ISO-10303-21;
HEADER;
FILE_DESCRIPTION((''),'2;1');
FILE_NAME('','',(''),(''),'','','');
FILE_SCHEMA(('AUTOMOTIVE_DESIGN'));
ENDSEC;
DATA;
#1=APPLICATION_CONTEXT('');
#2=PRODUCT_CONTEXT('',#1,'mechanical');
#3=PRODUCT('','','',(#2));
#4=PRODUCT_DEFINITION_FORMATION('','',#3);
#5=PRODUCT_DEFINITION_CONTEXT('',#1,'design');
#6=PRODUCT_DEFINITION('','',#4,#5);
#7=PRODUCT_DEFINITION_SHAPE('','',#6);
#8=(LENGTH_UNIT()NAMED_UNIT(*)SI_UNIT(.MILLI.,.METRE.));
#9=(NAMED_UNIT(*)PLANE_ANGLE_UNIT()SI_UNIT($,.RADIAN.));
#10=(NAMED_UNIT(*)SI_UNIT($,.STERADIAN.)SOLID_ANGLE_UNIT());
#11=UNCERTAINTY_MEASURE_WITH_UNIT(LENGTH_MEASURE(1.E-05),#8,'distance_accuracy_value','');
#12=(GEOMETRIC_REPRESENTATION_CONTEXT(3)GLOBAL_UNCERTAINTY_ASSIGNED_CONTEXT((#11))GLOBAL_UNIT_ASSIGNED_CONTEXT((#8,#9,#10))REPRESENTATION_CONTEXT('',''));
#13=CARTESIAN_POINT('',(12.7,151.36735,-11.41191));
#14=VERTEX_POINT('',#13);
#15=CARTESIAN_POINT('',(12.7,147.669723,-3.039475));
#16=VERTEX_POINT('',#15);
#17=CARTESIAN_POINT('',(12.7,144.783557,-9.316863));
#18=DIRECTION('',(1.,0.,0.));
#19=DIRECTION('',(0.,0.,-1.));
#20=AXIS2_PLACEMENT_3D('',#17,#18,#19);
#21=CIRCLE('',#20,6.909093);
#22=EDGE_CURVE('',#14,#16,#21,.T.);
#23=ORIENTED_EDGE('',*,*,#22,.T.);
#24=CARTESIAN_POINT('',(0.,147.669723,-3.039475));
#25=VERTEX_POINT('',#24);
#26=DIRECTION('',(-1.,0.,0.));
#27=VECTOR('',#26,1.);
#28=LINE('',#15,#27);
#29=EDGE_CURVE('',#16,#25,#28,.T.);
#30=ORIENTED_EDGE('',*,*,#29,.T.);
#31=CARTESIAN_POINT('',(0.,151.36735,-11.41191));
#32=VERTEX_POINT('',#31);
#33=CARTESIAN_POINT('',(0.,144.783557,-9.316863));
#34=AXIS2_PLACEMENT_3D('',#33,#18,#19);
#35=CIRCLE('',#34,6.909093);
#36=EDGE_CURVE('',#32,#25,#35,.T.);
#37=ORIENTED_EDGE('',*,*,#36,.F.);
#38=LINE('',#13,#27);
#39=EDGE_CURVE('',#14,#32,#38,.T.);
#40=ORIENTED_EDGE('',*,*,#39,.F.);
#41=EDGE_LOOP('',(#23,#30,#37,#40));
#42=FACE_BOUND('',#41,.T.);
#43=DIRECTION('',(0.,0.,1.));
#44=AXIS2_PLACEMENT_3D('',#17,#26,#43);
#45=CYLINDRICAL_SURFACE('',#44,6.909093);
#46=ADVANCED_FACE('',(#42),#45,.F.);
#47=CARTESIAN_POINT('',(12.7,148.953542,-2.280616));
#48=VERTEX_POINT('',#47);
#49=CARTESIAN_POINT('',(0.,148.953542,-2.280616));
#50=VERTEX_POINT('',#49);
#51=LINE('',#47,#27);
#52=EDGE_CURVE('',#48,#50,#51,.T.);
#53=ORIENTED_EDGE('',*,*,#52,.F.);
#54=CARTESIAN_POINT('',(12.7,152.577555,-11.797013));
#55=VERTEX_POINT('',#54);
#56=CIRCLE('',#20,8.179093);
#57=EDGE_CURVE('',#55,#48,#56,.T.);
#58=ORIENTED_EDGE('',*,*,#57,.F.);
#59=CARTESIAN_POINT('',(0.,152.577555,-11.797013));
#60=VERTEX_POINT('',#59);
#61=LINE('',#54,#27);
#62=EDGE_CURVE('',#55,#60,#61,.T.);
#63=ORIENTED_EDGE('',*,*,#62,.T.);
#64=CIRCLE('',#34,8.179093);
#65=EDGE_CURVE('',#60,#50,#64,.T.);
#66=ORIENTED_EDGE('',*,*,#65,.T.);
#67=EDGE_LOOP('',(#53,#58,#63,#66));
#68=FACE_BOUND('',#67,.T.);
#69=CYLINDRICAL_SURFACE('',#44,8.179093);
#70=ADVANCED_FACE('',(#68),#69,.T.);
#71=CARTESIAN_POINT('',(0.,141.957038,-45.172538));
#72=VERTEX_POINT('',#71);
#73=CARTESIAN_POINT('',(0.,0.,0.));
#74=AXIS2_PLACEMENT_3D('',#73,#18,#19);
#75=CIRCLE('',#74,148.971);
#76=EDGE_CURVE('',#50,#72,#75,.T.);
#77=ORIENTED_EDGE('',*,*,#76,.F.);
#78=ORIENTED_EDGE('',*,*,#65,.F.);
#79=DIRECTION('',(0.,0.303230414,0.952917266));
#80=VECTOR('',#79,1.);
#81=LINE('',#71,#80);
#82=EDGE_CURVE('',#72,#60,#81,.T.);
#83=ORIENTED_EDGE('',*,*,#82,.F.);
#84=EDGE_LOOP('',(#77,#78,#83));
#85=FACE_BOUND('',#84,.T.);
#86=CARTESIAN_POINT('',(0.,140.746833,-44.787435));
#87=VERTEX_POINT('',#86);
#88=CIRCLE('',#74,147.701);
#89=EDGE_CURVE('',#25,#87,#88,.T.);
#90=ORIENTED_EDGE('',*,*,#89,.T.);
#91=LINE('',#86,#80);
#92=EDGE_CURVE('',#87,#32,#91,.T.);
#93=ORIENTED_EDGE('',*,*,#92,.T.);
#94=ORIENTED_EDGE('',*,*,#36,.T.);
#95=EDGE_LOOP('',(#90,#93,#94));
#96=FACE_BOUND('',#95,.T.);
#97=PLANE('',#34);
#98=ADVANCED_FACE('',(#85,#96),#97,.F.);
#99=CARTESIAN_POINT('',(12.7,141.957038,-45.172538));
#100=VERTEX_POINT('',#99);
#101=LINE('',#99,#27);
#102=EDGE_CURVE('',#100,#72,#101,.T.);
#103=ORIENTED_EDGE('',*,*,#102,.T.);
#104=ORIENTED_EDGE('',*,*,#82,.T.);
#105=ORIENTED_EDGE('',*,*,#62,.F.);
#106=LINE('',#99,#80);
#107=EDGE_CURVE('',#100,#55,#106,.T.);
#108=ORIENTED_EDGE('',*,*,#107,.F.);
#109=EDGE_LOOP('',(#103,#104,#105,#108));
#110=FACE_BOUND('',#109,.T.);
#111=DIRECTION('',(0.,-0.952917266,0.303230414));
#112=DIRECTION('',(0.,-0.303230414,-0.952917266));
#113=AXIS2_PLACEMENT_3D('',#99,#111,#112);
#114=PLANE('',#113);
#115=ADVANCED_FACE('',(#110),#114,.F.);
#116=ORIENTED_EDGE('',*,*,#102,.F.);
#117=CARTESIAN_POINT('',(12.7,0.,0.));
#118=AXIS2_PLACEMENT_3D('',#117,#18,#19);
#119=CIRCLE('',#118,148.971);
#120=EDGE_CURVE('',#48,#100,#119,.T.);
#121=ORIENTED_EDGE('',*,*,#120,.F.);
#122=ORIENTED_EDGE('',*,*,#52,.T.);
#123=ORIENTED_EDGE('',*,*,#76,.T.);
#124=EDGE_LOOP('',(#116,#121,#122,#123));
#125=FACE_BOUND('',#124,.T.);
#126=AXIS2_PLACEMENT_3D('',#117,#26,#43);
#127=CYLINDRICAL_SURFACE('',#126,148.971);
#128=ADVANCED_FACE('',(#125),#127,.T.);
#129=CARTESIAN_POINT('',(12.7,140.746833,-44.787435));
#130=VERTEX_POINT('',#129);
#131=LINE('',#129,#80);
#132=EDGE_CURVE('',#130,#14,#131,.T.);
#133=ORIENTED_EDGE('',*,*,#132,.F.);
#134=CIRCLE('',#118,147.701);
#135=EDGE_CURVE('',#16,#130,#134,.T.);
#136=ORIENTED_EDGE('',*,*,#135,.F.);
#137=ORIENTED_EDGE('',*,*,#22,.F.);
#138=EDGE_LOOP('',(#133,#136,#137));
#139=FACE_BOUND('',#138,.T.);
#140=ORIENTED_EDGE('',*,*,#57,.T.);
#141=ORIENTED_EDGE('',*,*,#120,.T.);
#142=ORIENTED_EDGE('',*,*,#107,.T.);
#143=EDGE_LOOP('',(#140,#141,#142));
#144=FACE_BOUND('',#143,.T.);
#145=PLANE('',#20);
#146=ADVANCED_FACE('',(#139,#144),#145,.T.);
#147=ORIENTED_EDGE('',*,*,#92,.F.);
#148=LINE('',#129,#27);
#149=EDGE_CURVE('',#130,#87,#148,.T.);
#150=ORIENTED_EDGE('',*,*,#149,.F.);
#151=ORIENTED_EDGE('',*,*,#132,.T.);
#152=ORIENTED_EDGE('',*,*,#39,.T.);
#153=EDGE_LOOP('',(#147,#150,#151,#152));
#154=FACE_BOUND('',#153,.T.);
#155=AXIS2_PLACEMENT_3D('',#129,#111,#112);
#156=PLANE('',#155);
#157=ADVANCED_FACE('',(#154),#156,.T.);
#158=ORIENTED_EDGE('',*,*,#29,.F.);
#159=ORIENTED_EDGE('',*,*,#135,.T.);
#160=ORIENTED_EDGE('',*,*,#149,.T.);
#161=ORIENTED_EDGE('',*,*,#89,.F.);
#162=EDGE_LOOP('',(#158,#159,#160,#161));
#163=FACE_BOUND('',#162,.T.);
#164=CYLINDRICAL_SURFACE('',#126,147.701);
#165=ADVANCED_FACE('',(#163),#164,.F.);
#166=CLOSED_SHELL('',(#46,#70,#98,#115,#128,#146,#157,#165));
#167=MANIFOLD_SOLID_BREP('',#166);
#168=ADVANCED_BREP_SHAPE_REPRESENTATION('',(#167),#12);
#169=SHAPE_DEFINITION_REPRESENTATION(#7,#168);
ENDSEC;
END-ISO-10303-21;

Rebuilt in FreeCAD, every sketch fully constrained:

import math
import FreeCAD as App
import Part
import Sketcher
Q = App.Units.Quantity

doc = App.newDocument("Part")
body = doc.addObject("PartDesign::Body", "Body")

# Sketch on YZ plane
sketch1 = body.newObject("Sketcher::SketchObject", "Sketch")
sketch1.AttachmentSupport = (doc.getObject("YZ_Plane"), [""])
sketch1.MapMode = "FlatFace"
sketch1.addGeometry([
    Part.LineSegment(App.Vector(141.957038, -45.172538, 0), App.Vector(152.577555, -11.797013, 0)),  # 0
    Part.ArcOfCircle(Part.Circle(App.Vector(144.783557, -9.316863, 0), App.Vector(0, 0, 1), 8.179093), math.radians(-17.651733), math.radians(59.347181)),  # 1
    Part.ArcOfCircle(Part.Circle(App.Vector(0, 0, 0), App.Vector(0, 0, 1), 148.971), math.radians(-0.877183), math.radians(342.348267)),  # 2
    Part.LineSegment(App.Vector(151.36735, -11.41191, 0), App.Vector(140.746833, -44.787435, 0)),  # 3
    Part.ArcOfCircle(Part.Circle(App.Vector(0, 0, 0), App.Vector(0, 0, 1), 147.701), math.radians(-1.179148), math.radians(342.348267)),  # 4
    Part.ArcOfCircle(Part.Circle(App.Vector(144.783557, -9.316863, 0), App.Vector(0, 0, 1), 6.909093), math.radians(-17.651733), math.radians(65.308365)),  # 5
], False)
sketch1.addConstraint([
    Sketcher.Constraint("Coincident", 0, 2, 1, 1),
    Sketcher.Constraint("Coincident", 1, 2, 2, 1),
    Sketcher.Constraint("Coincident", 2, 2, 0, 1),
    Sketcher.Constraint("Coincident", 3, 2, 4, 2),
    Sketcher.Constraint("Coincident", 4, 1, 5, 2),
    Sketcher.Constraint("Coincident", 5, 1, 3, 1),
    Sketcher.Constraint("Coincident", 2, 3, -1, 1),
    Sketcher.Constraint("Coincident", 4, 3, -1, 1),
    Sketcher.Constraint("Coincident", 5, 3, 1, 3),
    Sketcher.Constraint("Radius", 2, Q("5.865 in")),
    Sketcher.Constraint("Radius", 4, Q("5.815 in")),
    Sketcher.Constraint("Radius", 1, Q("8.179093 mm")),
    Sketcher.Constraint("Radius", 5, Q("6.909093 mm")),
    Sketcher.Constraint("DistanceX", 5, 3, 0, 2, Q("7.793998 mm")),
    Sketcher.Constraint("DistanceX", -1, 1, 2, 2, Q("141.957038 mm")),
    Sketcher.Constraint("DistanceX", -1, 1, 5, 1, Q("151.36735 mm")),
    Sketcher.Constraint("DistanceY", 5, 1, -1, 1, Q("11.41191 mm")),
    Sketcher.Constraint("DistanceX", 2, 2, 1, 3, Q("2.826519 mm")),
    Sketcher.Constraint("DistanceX", 3, 2, 1, 2, Q("8.206709 mm")),
])
pad1 = body.newObject("PartDesign::Pad", "Pad")
pad1.Profile = sketch1
pad1.Length = Q("0.5 in")

doc.recompute()
